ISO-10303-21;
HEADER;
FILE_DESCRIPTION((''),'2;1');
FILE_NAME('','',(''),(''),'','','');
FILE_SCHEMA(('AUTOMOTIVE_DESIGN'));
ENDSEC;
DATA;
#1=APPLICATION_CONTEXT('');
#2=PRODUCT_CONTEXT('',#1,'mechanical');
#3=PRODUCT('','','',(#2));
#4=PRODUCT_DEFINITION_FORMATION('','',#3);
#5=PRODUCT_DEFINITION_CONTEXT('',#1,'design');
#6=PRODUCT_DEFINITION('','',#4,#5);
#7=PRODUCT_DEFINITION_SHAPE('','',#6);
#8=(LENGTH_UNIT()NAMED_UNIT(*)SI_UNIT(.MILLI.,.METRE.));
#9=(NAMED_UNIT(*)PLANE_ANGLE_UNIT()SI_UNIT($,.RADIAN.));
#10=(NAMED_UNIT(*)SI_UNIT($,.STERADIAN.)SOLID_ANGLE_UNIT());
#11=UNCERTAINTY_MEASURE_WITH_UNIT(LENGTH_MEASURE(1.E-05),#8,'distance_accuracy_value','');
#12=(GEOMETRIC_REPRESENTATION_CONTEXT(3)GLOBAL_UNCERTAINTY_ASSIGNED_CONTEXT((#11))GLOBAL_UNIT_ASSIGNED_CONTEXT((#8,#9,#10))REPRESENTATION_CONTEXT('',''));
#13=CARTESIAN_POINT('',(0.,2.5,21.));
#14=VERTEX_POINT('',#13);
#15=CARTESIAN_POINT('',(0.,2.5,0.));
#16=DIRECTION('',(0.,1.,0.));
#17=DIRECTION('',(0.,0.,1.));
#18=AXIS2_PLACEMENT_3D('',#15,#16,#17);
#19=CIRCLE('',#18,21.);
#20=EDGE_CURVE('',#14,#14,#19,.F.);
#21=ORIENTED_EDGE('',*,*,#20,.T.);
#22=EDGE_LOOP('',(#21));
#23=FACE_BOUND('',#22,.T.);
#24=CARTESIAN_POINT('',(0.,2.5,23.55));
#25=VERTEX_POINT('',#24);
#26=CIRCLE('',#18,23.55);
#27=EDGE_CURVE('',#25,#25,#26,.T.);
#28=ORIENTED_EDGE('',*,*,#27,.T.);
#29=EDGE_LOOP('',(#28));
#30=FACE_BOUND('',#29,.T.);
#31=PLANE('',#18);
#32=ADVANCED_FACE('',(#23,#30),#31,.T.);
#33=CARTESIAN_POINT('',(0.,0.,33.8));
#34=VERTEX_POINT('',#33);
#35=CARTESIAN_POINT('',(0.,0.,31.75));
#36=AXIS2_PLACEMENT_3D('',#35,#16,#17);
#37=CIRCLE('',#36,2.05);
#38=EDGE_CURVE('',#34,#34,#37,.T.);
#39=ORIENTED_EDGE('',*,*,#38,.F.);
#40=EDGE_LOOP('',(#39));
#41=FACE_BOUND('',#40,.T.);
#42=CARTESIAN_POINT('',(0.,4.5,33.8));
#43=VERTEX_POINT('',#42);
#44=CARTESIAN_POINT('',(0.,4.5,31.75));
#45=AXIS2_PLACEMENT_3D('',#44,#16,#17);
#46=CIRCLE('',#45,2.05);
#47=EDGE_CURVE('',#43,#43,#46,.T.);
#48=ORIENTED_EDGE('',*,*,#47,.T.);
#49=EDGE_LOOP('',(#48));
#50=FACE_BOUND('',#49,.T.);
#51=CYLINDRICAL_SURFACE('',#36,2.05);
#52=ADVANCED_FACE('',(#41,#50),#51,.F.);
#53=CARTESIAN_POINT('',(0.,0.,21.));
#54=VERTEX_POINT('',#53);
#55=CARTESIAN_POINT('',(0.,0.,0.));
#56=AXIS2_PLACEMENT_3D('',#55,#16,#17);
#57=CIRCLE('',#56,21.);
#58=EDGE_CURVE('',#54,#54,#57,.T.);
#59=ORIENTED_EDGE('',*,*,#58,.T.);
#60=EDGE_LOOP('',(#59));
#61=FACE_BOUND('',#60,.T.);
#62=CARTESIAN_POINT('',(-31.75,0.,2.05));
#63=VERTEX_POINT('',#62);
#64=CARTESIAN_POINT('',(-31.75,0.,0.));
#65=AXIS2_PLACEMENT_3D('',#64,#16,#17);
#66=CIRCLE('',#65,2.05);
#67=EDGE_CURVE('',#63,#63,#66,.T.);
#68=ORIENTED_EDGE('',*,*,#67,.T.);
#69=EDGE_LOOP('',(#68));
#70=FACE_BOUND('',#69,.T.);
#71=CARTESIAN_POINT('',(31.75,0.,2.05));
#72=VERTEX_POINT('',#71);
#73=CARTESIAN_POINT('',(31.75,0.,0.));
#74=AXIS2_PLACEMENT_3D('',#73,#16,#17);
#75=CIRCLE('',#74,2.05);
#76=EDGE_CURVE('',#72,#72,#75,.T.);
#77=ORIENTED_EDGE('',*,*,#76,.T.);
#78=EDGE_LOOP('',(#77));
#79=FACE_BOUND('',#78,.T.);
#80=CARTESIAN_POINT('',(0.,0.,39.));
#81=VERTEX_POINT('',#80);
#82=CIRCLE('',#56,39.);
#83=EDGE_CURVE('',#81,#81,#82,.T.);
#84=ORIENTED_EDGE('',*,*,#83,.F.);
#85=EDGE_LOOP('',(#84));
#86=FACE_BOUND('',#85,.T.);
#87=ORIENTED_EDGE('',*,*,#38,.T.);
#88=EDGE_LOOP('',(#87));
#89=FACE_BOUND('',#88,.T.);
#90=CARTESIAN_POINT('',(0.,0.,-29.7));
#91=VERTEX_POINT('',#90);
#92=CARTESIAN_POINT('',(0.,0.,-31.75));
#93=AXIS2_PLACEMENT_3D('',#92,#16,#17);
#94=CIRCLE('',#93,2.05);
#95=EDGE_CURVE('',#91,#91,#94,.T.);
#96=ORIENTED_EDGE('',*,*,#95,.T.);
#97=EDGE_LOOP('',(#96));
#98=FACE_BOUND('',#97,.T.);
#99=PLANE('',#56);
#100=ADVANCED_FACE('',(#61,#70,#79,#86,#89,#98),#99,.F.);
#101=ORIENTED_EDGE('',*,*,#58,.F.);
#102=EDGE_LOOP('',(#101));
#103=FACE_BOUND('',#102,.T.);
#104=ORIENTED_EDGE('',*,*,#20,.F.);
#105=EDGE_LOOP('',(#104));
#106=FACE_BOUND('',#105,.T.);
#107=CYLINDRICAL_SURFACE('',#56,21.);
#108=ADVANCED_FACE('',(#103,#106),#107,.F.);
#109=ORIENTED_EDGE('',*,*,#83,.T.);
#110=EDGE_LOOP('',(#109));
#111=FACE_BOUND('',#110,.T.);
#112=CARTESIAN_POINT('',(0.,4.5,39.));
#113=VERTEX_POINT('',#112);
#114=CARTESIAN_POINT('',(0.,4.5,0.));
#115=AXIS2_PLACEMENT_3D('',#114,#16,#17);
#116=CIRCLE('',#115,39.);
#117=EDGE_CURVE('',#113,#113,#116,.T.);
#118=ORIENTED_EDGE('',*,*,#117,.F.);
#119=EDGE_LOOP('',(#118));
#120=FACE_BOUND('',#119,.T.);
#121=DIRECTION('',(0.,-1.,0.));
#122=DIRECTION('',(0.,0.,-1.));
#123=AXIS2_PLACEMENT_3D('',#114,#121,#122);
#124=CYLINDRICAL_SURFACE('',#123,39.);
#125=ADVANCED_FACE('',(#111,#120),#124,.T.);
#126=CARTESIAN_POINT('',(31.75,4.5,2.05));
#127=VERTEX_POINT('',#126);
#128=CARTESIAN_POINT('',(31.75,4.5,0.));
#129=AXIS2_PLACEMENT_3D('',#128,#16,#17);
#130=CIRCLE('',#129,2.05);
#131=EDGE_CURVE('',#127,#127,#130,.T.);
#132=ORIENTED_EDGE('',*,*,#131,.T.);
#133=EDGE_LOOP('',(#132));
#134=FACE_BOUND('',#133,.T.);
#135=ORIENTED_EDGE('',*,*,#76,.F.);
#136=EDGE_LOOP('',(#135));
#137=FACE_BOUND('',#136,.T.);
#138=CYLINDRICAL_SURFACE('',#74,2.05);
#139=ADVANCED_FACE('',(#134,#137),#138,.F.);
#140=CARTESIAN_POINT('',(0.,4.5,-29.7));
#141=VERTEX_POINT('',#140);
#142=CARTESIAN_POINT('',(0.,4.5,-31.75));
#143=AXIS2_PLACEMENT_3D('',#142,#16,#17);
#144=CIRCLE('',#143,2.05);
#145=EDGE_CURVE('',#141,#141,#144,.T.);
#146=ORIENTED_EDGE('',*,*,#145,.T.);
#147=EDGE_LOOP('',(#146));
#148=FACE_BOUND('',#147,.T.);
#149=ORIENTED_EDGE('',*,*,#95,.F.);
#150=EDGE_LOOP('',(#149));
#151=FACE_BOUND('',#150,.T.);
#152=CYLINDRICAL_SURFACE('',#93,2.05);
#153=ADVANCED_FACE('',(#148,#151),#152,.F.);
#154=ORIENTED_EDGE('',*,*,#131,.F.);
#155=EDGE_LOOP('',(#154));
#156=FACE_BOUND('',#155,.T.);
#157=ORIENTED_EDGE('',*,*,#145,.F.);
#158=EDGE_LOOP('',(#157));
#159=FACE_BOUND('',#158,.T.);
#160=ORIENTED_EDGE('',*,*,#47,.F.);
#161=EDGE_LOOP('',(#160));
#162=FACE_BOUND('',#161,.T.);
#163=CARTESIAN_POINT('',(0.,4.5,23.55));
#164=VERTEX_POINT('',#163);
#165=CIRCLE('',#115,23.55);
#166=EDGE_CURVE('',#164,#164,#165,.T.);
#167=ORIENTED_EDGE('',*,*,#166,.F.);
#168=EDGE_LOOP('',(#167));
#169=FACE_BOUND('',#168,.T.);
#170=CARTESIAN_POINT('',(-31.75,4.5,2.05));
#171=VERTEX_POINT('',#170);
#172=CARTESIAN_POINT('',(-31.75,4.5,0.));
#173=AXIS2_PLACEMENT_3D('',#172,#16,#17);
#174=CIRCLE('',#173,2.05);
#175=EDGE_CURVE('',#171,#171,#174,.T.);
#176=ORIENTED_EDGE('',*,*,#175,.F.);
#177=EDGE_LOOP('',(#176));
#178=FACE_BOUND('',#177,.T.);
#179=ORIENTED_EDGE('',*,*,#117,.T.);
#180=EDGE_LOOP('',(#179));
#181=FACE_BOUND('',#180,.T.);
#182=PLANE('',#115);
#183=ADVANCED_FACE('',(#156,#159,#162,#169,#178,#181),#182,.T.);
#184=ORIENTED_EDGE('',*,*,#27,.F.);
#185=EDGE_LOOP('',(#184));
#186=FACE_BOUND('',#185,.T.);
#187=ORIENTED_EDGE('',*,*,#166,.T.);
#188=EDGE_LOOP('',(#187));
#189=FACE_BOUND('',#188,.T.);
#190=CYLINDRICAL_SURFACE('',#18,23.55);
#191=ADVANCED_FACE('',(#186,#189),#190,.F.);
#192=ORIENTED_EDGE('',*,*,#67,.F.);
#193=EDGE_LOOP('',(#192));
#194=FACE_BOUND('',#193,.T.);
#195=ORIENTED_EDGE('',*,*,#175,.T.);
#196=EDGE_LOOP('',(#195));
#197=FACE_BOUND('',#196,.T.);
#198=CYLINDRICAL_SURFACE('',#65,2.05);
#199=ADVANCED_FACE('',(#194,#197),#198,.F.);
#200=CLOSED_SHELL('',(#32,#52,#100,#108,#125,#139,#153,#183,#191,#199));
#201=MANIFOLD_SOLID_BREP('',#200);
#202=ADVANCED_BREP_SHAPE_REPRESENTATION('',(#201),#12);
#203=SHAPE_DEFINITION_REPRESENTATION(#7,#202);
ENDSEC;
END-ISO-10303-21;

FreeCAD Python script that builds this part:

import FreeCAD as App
import Part
import Sketcher

doc = App.newDocument("Part")
body = doc.addObject("PartDesign::Body", "Body")

# Sketch on XZ plane
sketch1 = body.newObject("Sketcher::SketchObject", "Sketch")
sketch1.AttachmentSupport = (doc.getObject("XZ_Plane"), [""])
sketch1.MapMode = "FlatFace"
sketch1.addGeometry(Part.Circle(App.Vector(0, 0, 0), App.Vector(0, 0, 1), 39), False)
sketch1.addConstraint([
    Sketcher.Constraint("Coincident", 0, 3, -1, 1),
    Sketcher.Constraint("Diameter", 0, 78.0),
])
pad1 = body.newObject("PartDesign::Pad", "Pad")
pad1.Profile = sketch1
pad1.Length = 4.5
pad1.Reversed = True

# Sketch on XZ plane
sketch2 = body.newObject("Sketcher::SketchObject", "Sketch001")
sketch2.AttachmentSupport = (doc.getObject("XZ_Plane"), [""])
sketch2.MapMode = "FlatFace"
sketch2.AttachmentOffset = App.Placement(App.Vector(0, 0, -4.5), App.Rotation())
sketch2.addGeometry([
    Part.Circle(App.Vector(31.75, 0, 0), App.Vector(0, 0, 1), 2.05),
    Part.Circle(App.Vector(0, 31.75, 0), App.Vector(0, 0, 1), 2.05),
    Part.Circle(App.Vector(-31.75, 0, 0), App.Vector(0, 0, 1), 2.05),
    Part.Circle(App.Vector(0, -31.75, 0), App.Vector(0, 0, 1), 2.05),
], False)
sketch2.addConstraint([
    Sketcher.Constraint("Equal", 0, 1),
    Sketcher.Constraint("Equal", 1, 2),
    Sketcher.Constraint("Equal", 2, 3),
    Sketcher.Constraint("Symmetric", 0, 3, 2, 3, -1, 1),
    Sketcher.Constraint("Symmetric", 1, 3, 3, 3, -1, 1),
    Sketcher.Constraint("PointOnObject", 0, 3, -1),
    Sketcher.Constraint("PointOnObject", 1, 3, -2),
    Sketcher.Constraint("Diameter", 0, 4.1),
    Sketcher.Constraint("DistanceX", 2, 3, 0, 3, 63.5),
    Sketcher.Constraint("DistanceY", 3, 3, 1, 3, 63.5),
])
pocket1 = body.newObject("PartDesign::Pocket", "Pocket")
pocket1.Profile = sketch2
pocket1.Length = 4.5
pocket1.Reversed = True

# Sketch on XZ plane
sketch3 = body.newObject("Sketcher::SketchObject", "Sketch002")
sketch3.AttachmentSupport = (doc.getObject("XZ_Plane"), [""])
sketch3.MapMode = "FlatFace"
sketch3.AttachmentOffset = App.Placement(App.Vector(0, 0, -4.5), App.Rotation())
sketch3.addGeometry(Part.Circle(App.Vector(0, 0, 0), App.Vector(0, 0, 1), 21), False)
sketch3.addConstraint([
    Sketcher.Constraint("Coincident", 0, 3, -1, 1),
    Sketcher.Constraint("Diameter", 0, 42.0),
])
pocket2 = body.newObject("PartDesign::Pocket", "Pocket001")
pocket2.Profile = sketch3
pocket2.Length = 4.5
pocket2.Reversed = True

# Sketch on XZ plane
sketch4 = body.newObject("Sketcher::SketchObject", "Sketch003")
sketch4.AttachmentSupport = (doc.getObject("XZ_Plane"), [""])
sketch4.MapMode = "FlatFace"
sketch4.AttachmentOffset = App.Placement(App.Vector(0, 0, -4.5), App.Rotation())
sketch4.addGeometry(Part.Circle(App.Vector(0, 0, 0), App.Vector(0, 0, 1), 23.55), False)
sketch4.addConstraint([
    Sketcher.Constraint("Coincident", 0, 3, -1, 1),
    Sketcher.Constraint("Diameter", 0, 47.1),
])
pocket3 = body.newObject("PartDesign::Pocket", "Pocket002")
pocket3.Profile = sketch4
pocket3.Length = 2
pocket3.Reversed = True

doc.recompute()
